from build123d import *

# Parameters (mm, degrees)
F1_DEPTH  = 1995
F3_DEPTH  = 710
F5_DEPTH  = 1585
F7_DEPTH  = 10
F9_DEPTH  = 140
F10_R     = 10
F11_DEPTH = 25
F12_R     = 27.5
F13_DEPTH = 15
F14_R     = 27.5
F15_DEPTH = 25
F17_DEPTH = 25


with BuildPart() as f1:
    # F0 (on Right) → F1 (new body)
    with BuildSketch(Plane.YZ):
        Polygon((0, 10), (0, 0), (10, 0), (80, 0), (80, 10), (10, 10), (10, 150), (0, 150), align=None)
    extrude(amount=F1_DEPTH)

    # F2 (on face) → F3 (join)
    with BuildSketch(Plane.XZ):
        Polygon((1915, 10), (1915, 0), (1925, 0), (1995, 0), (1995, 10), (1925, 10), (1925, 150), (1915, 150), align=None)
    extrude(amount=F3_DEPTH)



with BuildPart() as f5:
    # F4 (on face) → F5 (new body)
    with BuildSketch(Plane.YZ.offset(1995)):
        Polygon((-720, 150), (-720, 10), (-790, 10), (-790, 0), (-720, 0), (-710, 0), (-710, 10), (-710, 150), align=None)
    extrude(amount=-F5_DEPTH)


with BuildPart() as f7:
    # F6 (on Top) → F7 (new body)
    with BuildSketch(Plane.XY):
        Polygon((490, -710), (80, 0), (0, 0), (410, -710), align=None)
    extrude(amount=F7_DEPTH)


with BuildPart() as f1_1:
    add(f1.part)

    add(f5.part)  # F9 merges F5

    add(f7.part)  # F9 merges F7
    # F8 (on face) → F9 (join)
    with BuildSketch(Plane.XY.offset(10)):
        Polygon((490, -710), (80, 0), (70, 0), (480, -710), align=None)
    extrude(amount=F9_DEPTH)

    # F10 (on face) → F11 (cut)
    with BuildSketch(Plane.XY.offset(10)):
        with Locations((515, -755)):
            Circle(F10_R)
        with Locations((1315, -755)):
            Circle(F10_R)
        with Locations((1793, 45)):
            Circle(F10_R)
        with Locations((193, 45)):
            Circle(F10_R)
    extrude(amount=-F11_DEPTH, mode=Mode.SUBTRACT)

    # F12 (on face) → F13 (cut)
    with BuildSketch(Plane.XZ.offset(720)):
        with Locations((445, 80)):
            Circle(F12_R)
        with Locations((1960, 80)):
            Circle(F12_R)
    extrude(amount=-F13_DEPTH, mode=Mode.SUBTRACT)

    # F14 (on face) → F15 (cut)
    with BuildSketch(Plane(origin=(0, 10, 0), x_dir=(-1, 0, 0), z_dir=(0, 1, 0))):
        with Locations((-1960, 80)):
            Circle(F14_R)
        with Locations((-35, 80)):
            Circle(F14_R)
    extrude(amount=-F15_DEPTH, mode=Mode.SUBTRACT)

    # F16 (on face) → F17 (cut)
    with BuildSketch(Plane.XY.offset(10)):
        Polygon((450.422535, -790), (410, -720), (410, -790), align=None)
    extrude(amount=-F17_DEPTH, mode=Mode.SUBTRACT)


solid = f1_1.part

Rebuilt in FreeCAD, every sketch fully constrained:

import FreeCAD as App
import Part
import Sketcher

V = App.Vector
Q = App.Units.Quantity


def add_polygon(sketch, points):
    """Adds a closed chain of lines whose ends are joined by coincident constraints."""
    first, n = sketch.GeometryCount, len(points)
    for a, b in zip(points, points[1:] + points[:1]):
        sketch.addGeometry(Part.LineSegment(App.Vector(*a, 0), App.Vector(*b, 0)), False)
    for i in range(n):
        sketch.addConstraint(Sketcher.Constraint("Coincident", first + i, 2, first + (i + 1) % n, 1))

doc = App.newDocument("Part")
params = doc.addObject("Spreadsheet::Sheet", "Params")
for row, (alias, value) in enumerate([
    ("sketch1_width", "80 mm"),
    ("sketch1_width2", "70 mm"),
    ("sketch1_height", "140 mm"),
    ("pad1_length", "1995 mm"),
    ("sketch2_width", "80 mm"),
    ("sketch2_width2", "70 mm"),
    ("sketch2_height", "140 mm"),
    ("pad2_length", "710 mm"),
    ("sketch3_width", "70 mm"),
    ("sketch3_width2", "80 mm"),
    ("sketch3_height", "140 mm"),
    ("pad3_length", "1585 mm"),
    ("sketch4_width", "80 mm"),
    ("pad4_length", "10 mm"),
    ("sketch5_width", "10 mm"),
    ("pad5_length", "140 mm"),
    ("sketch6_diameter", "20 mm"),
    ("pocket1_length", "25 mm"),
    ("sketch7_diameter", "55 mm"),
    ("pocket2_length", "15 mm"),
    ("sketch8_diameter", "55 mm"),
    ("pocket3_length", "25 mm"),
    ("sketch9_height", "70 mm"),
    ("pocket4_length", "25 mm"),
], start=1):
    params.set(f"A{row}", alias)
    params.set(f"B{row}", "=" + value)
    params.setAlias(f"B{row}", alias)

body = doc.addObject("PartDesign::Body", "Body")

sketch1 = body.newObject("Sketcher::SketchObject", "Sketch")
sketch1.AttachmentSupport = (doc.getObject("YZ_Plane"), [""])
sketch1.MapMode = "FlatFace"
add_polygon(sketch1, [(0, 0), (80, 0), (80, 10), (10, 10), (10, 150), (0, 150)])
sketch1.addConstraint(Sketcher.Constraint("Horizontal", 0))
sketch1.addConstraint(Sketcher.Constraint("Vertical", 1))
sketch1.addConstraint(Sketcher.Constraint("Horizontal", 2))
sketch1.addConstraint(Sketcher.Constraint("Vertical", 3))
sketch1.addConstraint(Sketcher.Constraint("Horizontal", 4))
sketch1.addConstraint(Sketcher.Constraint("Vertical", 5))
sketch1.addConstraint(Sketcher.Constraint("Coincident", 5, 2, -1, 1))
sketch1.addConstraint(Sketcher.Constraint("Equal", 4, 1))
sketch1.addConstraint(Sketcher.Constraint("DistanceX", 0, 1, 0, 2, Q("80 mm")))
sketch1.addConstraint(Sketcher.Constraint("DistanceX", 2, 2, 2, 1, Q("70 mm")))
sketch1.addConstraint(Sketcher.Constraint("DistanceY", 3, 1, 3, 2, Q("140 mm")))
sketch1.setExpression("Constraints[14]", "Params.sketch1_width")
sketch1.setExpression("Constraints[15]", "Params.sketch1_width2")
sketch1.setExpression("Constraints[16]", "Params.sketch1_height")
pad1 = body.newObject("PartDesign::Pad", "Pad")
pad1.Profile = sketch1
pad1.setExpression("Length", "Params.pad1_length")

sketch2 = body.newObject("Sketcher::SketchObject", "Sketch001")
sketch2.AttachmentSupport = (doc.getObject("XZ_Plane"), [""])
sketch2.MapMode = "FlatFace"
add_polygon(sketch2, [(1915, 0), (1995, 0), (1995, 10), (1925, 10), (1925, 150), (1915, 150)])
sketch2.addConstraint(Sketcher.Constraint("Horizontal", 0))
sketch2.addConstraint(Sketcher.Constraint("Vertical", 1))
sketch2.addConstraint(Sketcher.Constraint("Horizontal", 2))
sketch2.addConstraint(Sketcher.Constraint("Vertical", 3))
sketch2.addConstraint(Sketcher.Constraint("Horizontal", 4))
sketch2.addConstraint(Sketcher.Constraint("Vertical", 5))
sketch2.addConstraint(Sketcher.Constraint("PointOnObject", 0, 2, -1))
sketch2.addConstraint(Sketcher.Constraint("Equal", 4, 1))
sketch2.addConstraint(Sketcher.Constraint("DistanceX", 0, 1, 0, 2, Q("80 mm")))
sketch2.addConstraint(Sketcher.Constraint("DistanceX", 2, 2, 2, 1, Q("70 mm")))
sketch2.addConstraint(Sketcher.Constraint("DistanceY", 3, 1, 3, 2, Q("140 mm")))
sketch2.addConstraint(Sketcher.Constraint("DistanceX", -1, 1, 0, 2, Q("1995 mm")))
sketch2.setExpression("Constraints[14]", "Params.sketch2_width")
sketch2.setExpression("Constraints[15]", "Params.sketch2_width2")
sketch2.setExpression("Constraints[16]", "Params.sketch2_height")
pad2 = body.newObject("PartDesign::Pad", "Pad001")
pad2.Profile = sketch2
pad2.setExpression("Length", "Params.pad2_length")
body2 = doc.addObject("PartDesign::Body", "Body001")

sketch3 = body2.newObject("Sketcher::SketchObject", "Sketch002")
sketch3.AttachmentSupport = (doc.getObject("YZ_Plane001"), [""])
sketch3.MapMode = "FlatFace"
sketch3.AttachmentOffset = App.Placement(V(0, 0, 1995), App.Rotation())
add_polygon(sketch3, [(-720, 150), (-720, 10), (-790, 10), (-790, 0), (-710, 0), (-710, 150)])
sketch3.addConstraint(Sketcher.Constraint("Vertical", 0))
sketch3.addConstraint(Sketcher.Constraint("Horizontal", 1))
sketch3.addConstraint(Sketcher.Constraint("Vertical", 2))
sketch3.addConstraint(Sketcher.Constraint("Horizontal", 3))
sketch3.addConstraint(Sketcher.Constraint("Vertical", 4))
sketch3.addConstraint(Sketcher.Constraint("Horizontal", 5))
sketch3.addConstraint(Sketcher.Constraint("PointOnObject", 2, 2, -1))
sketch3.addConstraint(Sketcher.Constraint("Equal", 5, 2))
sketch3.addConstraint(Sketcher.Constraint("DistanceX", 1, 2, 1, 1, Q("70 mm")))
sketch3.addConstraint(Sketcher.Constraint("DistanceX", 3, 1, 3, 2, Q("80 mm")))
sketch3.addConstraint(Sketcher.Constraint("DistanceY", 0, 2, 0, 1, Q("140 mm")))
sketch3.addConstraint(Sketcher.Constraint("DistanceX", 0, 2, -1, 1, Q("720 mm")))
sketch3.setExpression("Constraints[14]", "Params.sketch3_width")
sketch3.setExpression("Constraints[15]", "Params.sketch3_width2")
sketch3.setExpression("Constraints[16]", "Params.sketch3_height")
pad3 = body2.newObject("PartDesign::Pad", "Pad002")
pad3.Profile = sketch3
pad3.setExpression("Length", "Params.pad3_length")
pad3.Reversed = True
body3 = doc.addObject("PartDesign::Body", "Body002")

sketch4 = body3.newObject("Sketcher::SketchObject", "Sketch003")
sketch4.AttachmentSupport = (doc.getObject("XY_Plane002"), [""])
sketch4.MapMode = "FlatFace"
add_polygon(sketch4, [(490, -710), (80, 0), (0, 0), (410, -710)])
sketch4.addConstraint(Sketcher.Constraint("Horizontal", 1))
sketch4.addConstraint(Sketcher.Constraint("Horizontal", 3))
sketch4.addConstraint(Sketcher.Constraint("Coincident", 1, 2, -1, 1))
sketch4.addConstraint(Sketcher.Constraint("Parallel", 0, 2))
sketch4.addConstraint(Sketcher.Constraint("DistanceX", 1, 2, 1, 1, Q("80 mm")))
sketch4.addConstraint(Sketcher.Constraint("DistanceX", -1, 1, 2, 2, Q("410 mm")))
sketch4.addConstraint(Sketcher.Constraint("DistanceY", 2, 2, -1, 1, Q("710 mm")))
sketch4.setExpression("Constraints[8]", "Params.sketch4_width")
pad4 = body3.newObject("PartDesign::Pad", "Pad003")
pad4.Profile = sketch4
pad4.setExpression("Length", "Params.pad4_length")
doc.recompute()

boolean = body.newObject("PartDesign::Boolean", "Boolean")
boolean.Type = "Fuse"
boolean.addObjects([body2])
doc.recompute()

boolean2 = body.newObject("PartDesign::Boolean", "Boolean001")
boolean2.Type = "Fuse"
boolean2.addObjects([body3])

sketch5 = body.newObject("Sketcher::SketchObject", "Sketch004")
sketch5.AttachmentSupport = (doc.getObject("XY_Plane"), [""])
sketch5.MapMode = "FlatFace"
sketch5.AttachmentOffset = App.Placement(V(0, 0, 10), App.Rotation())
add_polygon(sketch5, [(490, -710), (80, 0), (70, 0), (480, -710)])
sketch5.addConstraint(Sketcher.Constraint("Horizontal", 1))
sketch5.addConstraint(Sketcher.Constraint("Horizontal", 3))
sketch5.addConstraint(Sketcher.Constraint("PointOnObject", 0, 2, -1))
sketch5.addConstraint(Sketcher.Constraint("Parallel", 0, 2))
sketch5.addConstraint(Sketcher.Constraint("DistanceX", 1, 2, 1, 1, Q("10 mm")))
sketch5.addConstraint(Sketcher.Constraint("DistanceX", -1, 1, 0, 2, Q("80 mm")))
sketch5.addConstraint(Sketcher.Constraint("DistanceX", -1, 1, 2, 2, Q("480 mm")))
sketch5.addConstraint(Sketcher.Constraint("DistanceY", 2, 2, -1, 1, Q("710 mm")))
sketch5.setExpression("Constraints[8]", "Params.sketch5_width")
pad5 = body.newObject("PartDesign::Pad", "Pad004")
pad5.Profile = sketch5
pad5.setExpression("Length", "Params.pad5_length")

sketch6 = body.newObject("Sketcher::SketchObject", "Sketch005")
sketch6.AttachmentSupport = (doc.getObject("XY_Plane"), [""])
sketch6.MapMode = "FlatFace"
sketch6.AttachmentOffset = App.Placement(V(0, 0, 10), App.Rotation())
sketch6.addGeometry(Part.Circle(V(515, -755, 0), V(0, 0, 1), 10), False)
sketch6.addGeometry(Part.Circle(V(1315, -755, 0), V(0, 0, 1), 10), False)
sketch6.addGeometry(Part.Circle(V(1793, 45, 0), V(0, 0, 1), 10), False)
sketch6.addGeometry(Part.Circle(V(193, 45, 0), V(0, 0, 1), 10), False)
sketch6.addConstraint(Sketcher.Constraint("Equal", 0, 1))
sketch6.addConstraint(Sketcher.Constraint("Equal", 1, 2))
sketch6.addConstraint(Sketcher.Constraint("Equal", 2, 3))
sketch6.addConstraint(Sketcher.Constraint("Horizontal", 0, 3, 1, 3))
sketch6.addConstraint(Sketcher.Constraint("Horizontal", 2, 3, 3, 3))
sketch6.addConstraint(Sketcher.Constraint("Diameter", 0, Q("20 mm")))
sketch6.addConstraint(Sketcher.Constraint("DistanceX", -1, 1, 0, 3, Q("515 mm")))
sketch6.addConstraint(Sketcher.Constraint("DistanceY", 0, 3, -1, 1, Q("755 mm")))
sketch6.addConstraint(Sketcher.Constraint("DistanceX", -1, 1, 1, 3, Q("1315 mm")))
sketch6.addConstraint(Sketcher.Constraint("DistanceX", -1, 1, 2, 3, Q("1793 mm")))
sketch6.addConstraint(Sketcher.Constraint("DistanceY", -1, 1, 2, 3, Q("45 mm")))
sketch6.addConstraint(Sketcher.Constraint("DistanceX", -1, 1, 3, 3, Q("193 mm")))
sketch6.setExpression("Constraints[5]", "Params.sketch6_diameter")
pocket1 = body.newObject("PartDesign::Pocket", "Pocket")
pocket1.Profile = sketch6
pocket1.setExpression("Length", "Params.pocket1_length")

sketch7 = body.newObject("Sketcher::SketchObject", "Sketch006")
sketch7.AttachmentSupport = (doc.getObject("XZ_Plane"), [""])
sketch7.MapMode = "FlatFace"
sketch7.AttachmentOffset = App.Placement(V(0, 0, 720), App.Rotation())
sketch7.addGeometry(Part.Circle(V(445, 80, 0), V(0, 0, 1), 28), False)
sketch7.addGeometry(Part.Circle(V(1960, 80, 0), V(0, 0, 1), 28), False)
sketch7.addConstraint(Sketcher.Constraint("Equal", 0, 1))
sketch7.addConstraint(Sketcher.Constraint("Horizontal", 0, 3, 1, 3))
sketch7.addConstraint(Sketcher.Constraint("Diameter", 0, Q("55 mm")))
sketch7.addConstraint(Sketcher.Constraint("DistanceX", -1, 1, 0, 3, Q("445 mm")))
sketch7.addConstraint(Sketcher.Constraint("DistanceY", -1, 1, 0, 3, Q("80 mm")))
sketch7.addConstraint(Sketcher.Constraint("DistanceX", -1, 1, 1, 3, Q("1960 mm")))
sketch7.setExpression("Constraints[2]", "Params.sketch7_diameter")
pocket2 = body.newObject("PartDesign::Pocket", "Pocket001")
pocket2.Profile = sketch7
pocket2.setExpression("Length", "Params.pocket2_length")

sketch8 = body.newObject("Sketcher::SketchObject", "Sketch007")
sketch8.AttachmentSupport = (doc.getObject("XZ_Plane"), [""])
sketch8.MapMode = "FlatFace"
sketch8.AttachmentOffset = App.Placement(V(0, 0, -10), App.Rotation())
sketch8.addGeometry(Part.Circle(V(1960, 80, 0), V(0, 0, 1), 28), False)
sketch8.addGeometry(Part.Circle(V(35, 80, 0), V(0, 0, 1), 28), False)
sketch8.addConstraint(Sketcher.Constraint("Equal", 0, 1))
sketch8.addConstraint(Sketcher.Constraint("Horizontal", 0, 3, 1, 3))
sketch8.addConstraint(Sketcher.Constraint("Diameter", 0, Q("55 mm")))
sketch8.addConstraint(Sketcher.Constraint("DistanceX", -1, 1, 0, 3, Q("1960 mm")))
sketch8.addConstraint(Sketcher.Constraint("DistanceY", -1, 1, 0, 3, Q("80 mm")))
sketch8.addConstraint(Sketcher.Constraint("DistanceX", -1, 1, 1, 3, Q("35 mm")))
sketch8.setExpression("Constraints[2]", "Params.sketch8_diameter")
pocket3 = body.newObject("PartDesign::Pocket", "Pocket002")
pocket3.Profile = sketch8
pocket3.setExpression("Length", "Params.pocket3_length")
pocket3.Reversed = True

sketch9 = body.newObject("Sketcher::SketchObject", "Sketch008")
sketch9.AttachmentSupport = (doc.getObject("XY_Plane"), [""])
sketch9.MapMode = "FlatFace"
sketch9.AttachmentOffset = App.Placement(V(0, 0, 10), App.Rotation())
add_polygon(sketch9, [(450, -790), (410, -720), (410, -790)])
sketch9.addConstraint(Sketcher.Constraint("Vertical", 1))
sketch9.addConstraint(Sketcher.Constraint("Horizontal", 2))
sketch9.addConstraint(Sketcher.Constraint("DistanceY", 1, 2, 1, 1, Q("70 mm")))
sketch9.addConstraint(Sketcher.Constraint("DistanceX", -1, 1, 0, 2, Q("410 mm")))
sketch9.addConstraint(Sketcher.Constraint("DistanceY", 0, 2, -1, 1, Q("720 mm")))
sketch9.addConstraint(Sketcher.Constraint("DistanceX", 2, 1, 2, 2, Q("40.422535 mm")))
sketch9.setExpression("Constraints[5]", "Params.sketch9_height")
pocket4 = body.newObject("PartDesign::Pocket", "Pocket003")
pocket4.Profile = sketch9
pocket4.setExpression("Length", "Params.pocket4_length")

doc.recompute()
